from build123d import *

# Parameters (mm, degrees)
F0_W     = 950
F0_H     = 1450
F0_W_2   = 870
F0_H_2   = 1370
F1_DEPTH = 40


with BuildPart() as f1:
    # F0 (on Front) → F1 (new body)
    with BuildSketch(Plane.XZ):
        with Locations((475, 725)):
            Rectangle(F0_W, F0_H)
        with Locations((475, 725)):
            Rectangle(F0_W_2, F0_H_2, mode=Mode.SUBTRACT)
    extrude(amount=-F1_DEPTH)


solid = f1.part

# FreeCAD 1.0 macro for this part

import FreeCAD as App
import Part
import Sketcher
Q = App.Units.Quantity

doc = App.newDocument("Part")
params = doc.addObject("Spreadsheet::Sheet", "Params")
for row, (alias, value) in enumerate([
    ("sketch1_width", "950 mm"),
    ("sketch1_width2", "870 mm"),
    ("sketch1_height", "1450 mm"),
    ("sketch1_height2", "1370 mm"),
    ("pad1_length", "40 mm"),
], start=1):
    params.set(f"A{row}", alias)
    params.set(f"B{row}", "=" + value)
    params.setAlias(f"B{row}", alias)

body = doc.addObject("PartDesign::Body", "Body")

# Sketch on XZ plane
sketch1 = body.newObject("Sketcher::SketchObject", "Sketch")
sketch1.AttachmentSupport = (doc.getObject("XZ_Plane"), [""])
sketch1.MapMode = "FlatFace"
sketch1.addGeometry([
    Part.LineSegment(App.Vector(0, 1450, 0), App.Vector(0, 0, 0)),  # 0
    Part.LineSegment(App.Vector(0, 0, 0), App.Vector(950, 0, 0)),  # 1
    Part.LineSegment(App.Vector(950, 0, 0), App.Vector(950, 1450, 0)),  # 2
    Part.LineSegment(App.Vector(950, 1450, 0), App.Vector(0, 1450, 0)),  # 3
    Part.LineSegment(App.Vector(910, 40, 0), App.Vector(40, 40, 0)),  # 4
    Part.LineSegment(App.Vector(40, 40, 0), App.Vector(40, 1410, 0)),  # 5
    Part.LineSegment(App.Vector(40, 1410, 0), App.Vector(910, 1410, 0)),  # 6
    Part.LineSegment(App.Vector(910, 1410, 0), App.Vector(910, 40, 0)),  # 7
], False)
sketch1.addConstraint([
    Sketcher.Constraint("Coincident", 0, 2, 1, 1),
    Sketcher.Constraint("Coincident", 1, 2, 2, 1),
    Sketcher.Constraint("Coincident", 2, 2, 3, 1),
    Sketcher.Constraint("Coincident", 3, 2, 0, 1),
    Sketcher.Constraint("Coincident", 4, 2, 5, 1),
    Sketcher.Constraint("Coincident", 5, 2, 6, 1),
    Sketcher.Constraint("Coincident", 6, 2, 7, 1),
    Sketcher.Constraint("Coincident", 7, 2, 4, 1),
    Sketcher.Constraint("Vertical", 0),
    Sketcher.Constraint("Horizontal", 1),
    Sketcher.Constraint("Vertical", 2),
    Sketcher.Constraint("Horizontal", 3),
    Sketcher.Constraint("Horizontal", 4),
    Sketcher.Constraint("Vertical", 5),
    Sketcher.Constraint("Horizontal", 6),
    Sketcher.Constraint("Vertical", 7),
    Sketcher.Constraint("Coincident", 0, 2, -1, 1),
    Sketcher.Constraint("DistanceX", 1, 1, 1, 2, Q("950 mm")),
    Sketcher.Constraint("DistanceX", 4, 2, 4, 1, Q("870 mm")),
    Sketcher.Constraint("DistanceY", 0, 2, 0, 1, Q("1450 mm")),
    Sketcher.Constraint("DistanceY", 5, 1, 5, 2, Q("1370 mm")),
    Sketcher.Constraint("DistanceX", -1, 1, 4, 2, Q("40 mm")),
    Sketcher.Constraint("DistanceY", -1, 1, 4, 2, Q("40 mm")),
])
sketch1.setExpression("Constraints[17]", "Params.sketch1_width")
sketch1.setExpression("Constraints[18]", "Params.sketch1_width2")
sketch1.setExpression("Constraints[19]", "Params.sketch1_height")
sketch1.setExpression("Constraints[20]", "Params.sketch1_height2")
pad1 = body.newObject("PartDesign::Pad", "Pad")
pad1.Profile = sketch1
pad1.setExpression("Length", "Params.pad1_length")
pad1.Reversed = True

doc.recompute()
